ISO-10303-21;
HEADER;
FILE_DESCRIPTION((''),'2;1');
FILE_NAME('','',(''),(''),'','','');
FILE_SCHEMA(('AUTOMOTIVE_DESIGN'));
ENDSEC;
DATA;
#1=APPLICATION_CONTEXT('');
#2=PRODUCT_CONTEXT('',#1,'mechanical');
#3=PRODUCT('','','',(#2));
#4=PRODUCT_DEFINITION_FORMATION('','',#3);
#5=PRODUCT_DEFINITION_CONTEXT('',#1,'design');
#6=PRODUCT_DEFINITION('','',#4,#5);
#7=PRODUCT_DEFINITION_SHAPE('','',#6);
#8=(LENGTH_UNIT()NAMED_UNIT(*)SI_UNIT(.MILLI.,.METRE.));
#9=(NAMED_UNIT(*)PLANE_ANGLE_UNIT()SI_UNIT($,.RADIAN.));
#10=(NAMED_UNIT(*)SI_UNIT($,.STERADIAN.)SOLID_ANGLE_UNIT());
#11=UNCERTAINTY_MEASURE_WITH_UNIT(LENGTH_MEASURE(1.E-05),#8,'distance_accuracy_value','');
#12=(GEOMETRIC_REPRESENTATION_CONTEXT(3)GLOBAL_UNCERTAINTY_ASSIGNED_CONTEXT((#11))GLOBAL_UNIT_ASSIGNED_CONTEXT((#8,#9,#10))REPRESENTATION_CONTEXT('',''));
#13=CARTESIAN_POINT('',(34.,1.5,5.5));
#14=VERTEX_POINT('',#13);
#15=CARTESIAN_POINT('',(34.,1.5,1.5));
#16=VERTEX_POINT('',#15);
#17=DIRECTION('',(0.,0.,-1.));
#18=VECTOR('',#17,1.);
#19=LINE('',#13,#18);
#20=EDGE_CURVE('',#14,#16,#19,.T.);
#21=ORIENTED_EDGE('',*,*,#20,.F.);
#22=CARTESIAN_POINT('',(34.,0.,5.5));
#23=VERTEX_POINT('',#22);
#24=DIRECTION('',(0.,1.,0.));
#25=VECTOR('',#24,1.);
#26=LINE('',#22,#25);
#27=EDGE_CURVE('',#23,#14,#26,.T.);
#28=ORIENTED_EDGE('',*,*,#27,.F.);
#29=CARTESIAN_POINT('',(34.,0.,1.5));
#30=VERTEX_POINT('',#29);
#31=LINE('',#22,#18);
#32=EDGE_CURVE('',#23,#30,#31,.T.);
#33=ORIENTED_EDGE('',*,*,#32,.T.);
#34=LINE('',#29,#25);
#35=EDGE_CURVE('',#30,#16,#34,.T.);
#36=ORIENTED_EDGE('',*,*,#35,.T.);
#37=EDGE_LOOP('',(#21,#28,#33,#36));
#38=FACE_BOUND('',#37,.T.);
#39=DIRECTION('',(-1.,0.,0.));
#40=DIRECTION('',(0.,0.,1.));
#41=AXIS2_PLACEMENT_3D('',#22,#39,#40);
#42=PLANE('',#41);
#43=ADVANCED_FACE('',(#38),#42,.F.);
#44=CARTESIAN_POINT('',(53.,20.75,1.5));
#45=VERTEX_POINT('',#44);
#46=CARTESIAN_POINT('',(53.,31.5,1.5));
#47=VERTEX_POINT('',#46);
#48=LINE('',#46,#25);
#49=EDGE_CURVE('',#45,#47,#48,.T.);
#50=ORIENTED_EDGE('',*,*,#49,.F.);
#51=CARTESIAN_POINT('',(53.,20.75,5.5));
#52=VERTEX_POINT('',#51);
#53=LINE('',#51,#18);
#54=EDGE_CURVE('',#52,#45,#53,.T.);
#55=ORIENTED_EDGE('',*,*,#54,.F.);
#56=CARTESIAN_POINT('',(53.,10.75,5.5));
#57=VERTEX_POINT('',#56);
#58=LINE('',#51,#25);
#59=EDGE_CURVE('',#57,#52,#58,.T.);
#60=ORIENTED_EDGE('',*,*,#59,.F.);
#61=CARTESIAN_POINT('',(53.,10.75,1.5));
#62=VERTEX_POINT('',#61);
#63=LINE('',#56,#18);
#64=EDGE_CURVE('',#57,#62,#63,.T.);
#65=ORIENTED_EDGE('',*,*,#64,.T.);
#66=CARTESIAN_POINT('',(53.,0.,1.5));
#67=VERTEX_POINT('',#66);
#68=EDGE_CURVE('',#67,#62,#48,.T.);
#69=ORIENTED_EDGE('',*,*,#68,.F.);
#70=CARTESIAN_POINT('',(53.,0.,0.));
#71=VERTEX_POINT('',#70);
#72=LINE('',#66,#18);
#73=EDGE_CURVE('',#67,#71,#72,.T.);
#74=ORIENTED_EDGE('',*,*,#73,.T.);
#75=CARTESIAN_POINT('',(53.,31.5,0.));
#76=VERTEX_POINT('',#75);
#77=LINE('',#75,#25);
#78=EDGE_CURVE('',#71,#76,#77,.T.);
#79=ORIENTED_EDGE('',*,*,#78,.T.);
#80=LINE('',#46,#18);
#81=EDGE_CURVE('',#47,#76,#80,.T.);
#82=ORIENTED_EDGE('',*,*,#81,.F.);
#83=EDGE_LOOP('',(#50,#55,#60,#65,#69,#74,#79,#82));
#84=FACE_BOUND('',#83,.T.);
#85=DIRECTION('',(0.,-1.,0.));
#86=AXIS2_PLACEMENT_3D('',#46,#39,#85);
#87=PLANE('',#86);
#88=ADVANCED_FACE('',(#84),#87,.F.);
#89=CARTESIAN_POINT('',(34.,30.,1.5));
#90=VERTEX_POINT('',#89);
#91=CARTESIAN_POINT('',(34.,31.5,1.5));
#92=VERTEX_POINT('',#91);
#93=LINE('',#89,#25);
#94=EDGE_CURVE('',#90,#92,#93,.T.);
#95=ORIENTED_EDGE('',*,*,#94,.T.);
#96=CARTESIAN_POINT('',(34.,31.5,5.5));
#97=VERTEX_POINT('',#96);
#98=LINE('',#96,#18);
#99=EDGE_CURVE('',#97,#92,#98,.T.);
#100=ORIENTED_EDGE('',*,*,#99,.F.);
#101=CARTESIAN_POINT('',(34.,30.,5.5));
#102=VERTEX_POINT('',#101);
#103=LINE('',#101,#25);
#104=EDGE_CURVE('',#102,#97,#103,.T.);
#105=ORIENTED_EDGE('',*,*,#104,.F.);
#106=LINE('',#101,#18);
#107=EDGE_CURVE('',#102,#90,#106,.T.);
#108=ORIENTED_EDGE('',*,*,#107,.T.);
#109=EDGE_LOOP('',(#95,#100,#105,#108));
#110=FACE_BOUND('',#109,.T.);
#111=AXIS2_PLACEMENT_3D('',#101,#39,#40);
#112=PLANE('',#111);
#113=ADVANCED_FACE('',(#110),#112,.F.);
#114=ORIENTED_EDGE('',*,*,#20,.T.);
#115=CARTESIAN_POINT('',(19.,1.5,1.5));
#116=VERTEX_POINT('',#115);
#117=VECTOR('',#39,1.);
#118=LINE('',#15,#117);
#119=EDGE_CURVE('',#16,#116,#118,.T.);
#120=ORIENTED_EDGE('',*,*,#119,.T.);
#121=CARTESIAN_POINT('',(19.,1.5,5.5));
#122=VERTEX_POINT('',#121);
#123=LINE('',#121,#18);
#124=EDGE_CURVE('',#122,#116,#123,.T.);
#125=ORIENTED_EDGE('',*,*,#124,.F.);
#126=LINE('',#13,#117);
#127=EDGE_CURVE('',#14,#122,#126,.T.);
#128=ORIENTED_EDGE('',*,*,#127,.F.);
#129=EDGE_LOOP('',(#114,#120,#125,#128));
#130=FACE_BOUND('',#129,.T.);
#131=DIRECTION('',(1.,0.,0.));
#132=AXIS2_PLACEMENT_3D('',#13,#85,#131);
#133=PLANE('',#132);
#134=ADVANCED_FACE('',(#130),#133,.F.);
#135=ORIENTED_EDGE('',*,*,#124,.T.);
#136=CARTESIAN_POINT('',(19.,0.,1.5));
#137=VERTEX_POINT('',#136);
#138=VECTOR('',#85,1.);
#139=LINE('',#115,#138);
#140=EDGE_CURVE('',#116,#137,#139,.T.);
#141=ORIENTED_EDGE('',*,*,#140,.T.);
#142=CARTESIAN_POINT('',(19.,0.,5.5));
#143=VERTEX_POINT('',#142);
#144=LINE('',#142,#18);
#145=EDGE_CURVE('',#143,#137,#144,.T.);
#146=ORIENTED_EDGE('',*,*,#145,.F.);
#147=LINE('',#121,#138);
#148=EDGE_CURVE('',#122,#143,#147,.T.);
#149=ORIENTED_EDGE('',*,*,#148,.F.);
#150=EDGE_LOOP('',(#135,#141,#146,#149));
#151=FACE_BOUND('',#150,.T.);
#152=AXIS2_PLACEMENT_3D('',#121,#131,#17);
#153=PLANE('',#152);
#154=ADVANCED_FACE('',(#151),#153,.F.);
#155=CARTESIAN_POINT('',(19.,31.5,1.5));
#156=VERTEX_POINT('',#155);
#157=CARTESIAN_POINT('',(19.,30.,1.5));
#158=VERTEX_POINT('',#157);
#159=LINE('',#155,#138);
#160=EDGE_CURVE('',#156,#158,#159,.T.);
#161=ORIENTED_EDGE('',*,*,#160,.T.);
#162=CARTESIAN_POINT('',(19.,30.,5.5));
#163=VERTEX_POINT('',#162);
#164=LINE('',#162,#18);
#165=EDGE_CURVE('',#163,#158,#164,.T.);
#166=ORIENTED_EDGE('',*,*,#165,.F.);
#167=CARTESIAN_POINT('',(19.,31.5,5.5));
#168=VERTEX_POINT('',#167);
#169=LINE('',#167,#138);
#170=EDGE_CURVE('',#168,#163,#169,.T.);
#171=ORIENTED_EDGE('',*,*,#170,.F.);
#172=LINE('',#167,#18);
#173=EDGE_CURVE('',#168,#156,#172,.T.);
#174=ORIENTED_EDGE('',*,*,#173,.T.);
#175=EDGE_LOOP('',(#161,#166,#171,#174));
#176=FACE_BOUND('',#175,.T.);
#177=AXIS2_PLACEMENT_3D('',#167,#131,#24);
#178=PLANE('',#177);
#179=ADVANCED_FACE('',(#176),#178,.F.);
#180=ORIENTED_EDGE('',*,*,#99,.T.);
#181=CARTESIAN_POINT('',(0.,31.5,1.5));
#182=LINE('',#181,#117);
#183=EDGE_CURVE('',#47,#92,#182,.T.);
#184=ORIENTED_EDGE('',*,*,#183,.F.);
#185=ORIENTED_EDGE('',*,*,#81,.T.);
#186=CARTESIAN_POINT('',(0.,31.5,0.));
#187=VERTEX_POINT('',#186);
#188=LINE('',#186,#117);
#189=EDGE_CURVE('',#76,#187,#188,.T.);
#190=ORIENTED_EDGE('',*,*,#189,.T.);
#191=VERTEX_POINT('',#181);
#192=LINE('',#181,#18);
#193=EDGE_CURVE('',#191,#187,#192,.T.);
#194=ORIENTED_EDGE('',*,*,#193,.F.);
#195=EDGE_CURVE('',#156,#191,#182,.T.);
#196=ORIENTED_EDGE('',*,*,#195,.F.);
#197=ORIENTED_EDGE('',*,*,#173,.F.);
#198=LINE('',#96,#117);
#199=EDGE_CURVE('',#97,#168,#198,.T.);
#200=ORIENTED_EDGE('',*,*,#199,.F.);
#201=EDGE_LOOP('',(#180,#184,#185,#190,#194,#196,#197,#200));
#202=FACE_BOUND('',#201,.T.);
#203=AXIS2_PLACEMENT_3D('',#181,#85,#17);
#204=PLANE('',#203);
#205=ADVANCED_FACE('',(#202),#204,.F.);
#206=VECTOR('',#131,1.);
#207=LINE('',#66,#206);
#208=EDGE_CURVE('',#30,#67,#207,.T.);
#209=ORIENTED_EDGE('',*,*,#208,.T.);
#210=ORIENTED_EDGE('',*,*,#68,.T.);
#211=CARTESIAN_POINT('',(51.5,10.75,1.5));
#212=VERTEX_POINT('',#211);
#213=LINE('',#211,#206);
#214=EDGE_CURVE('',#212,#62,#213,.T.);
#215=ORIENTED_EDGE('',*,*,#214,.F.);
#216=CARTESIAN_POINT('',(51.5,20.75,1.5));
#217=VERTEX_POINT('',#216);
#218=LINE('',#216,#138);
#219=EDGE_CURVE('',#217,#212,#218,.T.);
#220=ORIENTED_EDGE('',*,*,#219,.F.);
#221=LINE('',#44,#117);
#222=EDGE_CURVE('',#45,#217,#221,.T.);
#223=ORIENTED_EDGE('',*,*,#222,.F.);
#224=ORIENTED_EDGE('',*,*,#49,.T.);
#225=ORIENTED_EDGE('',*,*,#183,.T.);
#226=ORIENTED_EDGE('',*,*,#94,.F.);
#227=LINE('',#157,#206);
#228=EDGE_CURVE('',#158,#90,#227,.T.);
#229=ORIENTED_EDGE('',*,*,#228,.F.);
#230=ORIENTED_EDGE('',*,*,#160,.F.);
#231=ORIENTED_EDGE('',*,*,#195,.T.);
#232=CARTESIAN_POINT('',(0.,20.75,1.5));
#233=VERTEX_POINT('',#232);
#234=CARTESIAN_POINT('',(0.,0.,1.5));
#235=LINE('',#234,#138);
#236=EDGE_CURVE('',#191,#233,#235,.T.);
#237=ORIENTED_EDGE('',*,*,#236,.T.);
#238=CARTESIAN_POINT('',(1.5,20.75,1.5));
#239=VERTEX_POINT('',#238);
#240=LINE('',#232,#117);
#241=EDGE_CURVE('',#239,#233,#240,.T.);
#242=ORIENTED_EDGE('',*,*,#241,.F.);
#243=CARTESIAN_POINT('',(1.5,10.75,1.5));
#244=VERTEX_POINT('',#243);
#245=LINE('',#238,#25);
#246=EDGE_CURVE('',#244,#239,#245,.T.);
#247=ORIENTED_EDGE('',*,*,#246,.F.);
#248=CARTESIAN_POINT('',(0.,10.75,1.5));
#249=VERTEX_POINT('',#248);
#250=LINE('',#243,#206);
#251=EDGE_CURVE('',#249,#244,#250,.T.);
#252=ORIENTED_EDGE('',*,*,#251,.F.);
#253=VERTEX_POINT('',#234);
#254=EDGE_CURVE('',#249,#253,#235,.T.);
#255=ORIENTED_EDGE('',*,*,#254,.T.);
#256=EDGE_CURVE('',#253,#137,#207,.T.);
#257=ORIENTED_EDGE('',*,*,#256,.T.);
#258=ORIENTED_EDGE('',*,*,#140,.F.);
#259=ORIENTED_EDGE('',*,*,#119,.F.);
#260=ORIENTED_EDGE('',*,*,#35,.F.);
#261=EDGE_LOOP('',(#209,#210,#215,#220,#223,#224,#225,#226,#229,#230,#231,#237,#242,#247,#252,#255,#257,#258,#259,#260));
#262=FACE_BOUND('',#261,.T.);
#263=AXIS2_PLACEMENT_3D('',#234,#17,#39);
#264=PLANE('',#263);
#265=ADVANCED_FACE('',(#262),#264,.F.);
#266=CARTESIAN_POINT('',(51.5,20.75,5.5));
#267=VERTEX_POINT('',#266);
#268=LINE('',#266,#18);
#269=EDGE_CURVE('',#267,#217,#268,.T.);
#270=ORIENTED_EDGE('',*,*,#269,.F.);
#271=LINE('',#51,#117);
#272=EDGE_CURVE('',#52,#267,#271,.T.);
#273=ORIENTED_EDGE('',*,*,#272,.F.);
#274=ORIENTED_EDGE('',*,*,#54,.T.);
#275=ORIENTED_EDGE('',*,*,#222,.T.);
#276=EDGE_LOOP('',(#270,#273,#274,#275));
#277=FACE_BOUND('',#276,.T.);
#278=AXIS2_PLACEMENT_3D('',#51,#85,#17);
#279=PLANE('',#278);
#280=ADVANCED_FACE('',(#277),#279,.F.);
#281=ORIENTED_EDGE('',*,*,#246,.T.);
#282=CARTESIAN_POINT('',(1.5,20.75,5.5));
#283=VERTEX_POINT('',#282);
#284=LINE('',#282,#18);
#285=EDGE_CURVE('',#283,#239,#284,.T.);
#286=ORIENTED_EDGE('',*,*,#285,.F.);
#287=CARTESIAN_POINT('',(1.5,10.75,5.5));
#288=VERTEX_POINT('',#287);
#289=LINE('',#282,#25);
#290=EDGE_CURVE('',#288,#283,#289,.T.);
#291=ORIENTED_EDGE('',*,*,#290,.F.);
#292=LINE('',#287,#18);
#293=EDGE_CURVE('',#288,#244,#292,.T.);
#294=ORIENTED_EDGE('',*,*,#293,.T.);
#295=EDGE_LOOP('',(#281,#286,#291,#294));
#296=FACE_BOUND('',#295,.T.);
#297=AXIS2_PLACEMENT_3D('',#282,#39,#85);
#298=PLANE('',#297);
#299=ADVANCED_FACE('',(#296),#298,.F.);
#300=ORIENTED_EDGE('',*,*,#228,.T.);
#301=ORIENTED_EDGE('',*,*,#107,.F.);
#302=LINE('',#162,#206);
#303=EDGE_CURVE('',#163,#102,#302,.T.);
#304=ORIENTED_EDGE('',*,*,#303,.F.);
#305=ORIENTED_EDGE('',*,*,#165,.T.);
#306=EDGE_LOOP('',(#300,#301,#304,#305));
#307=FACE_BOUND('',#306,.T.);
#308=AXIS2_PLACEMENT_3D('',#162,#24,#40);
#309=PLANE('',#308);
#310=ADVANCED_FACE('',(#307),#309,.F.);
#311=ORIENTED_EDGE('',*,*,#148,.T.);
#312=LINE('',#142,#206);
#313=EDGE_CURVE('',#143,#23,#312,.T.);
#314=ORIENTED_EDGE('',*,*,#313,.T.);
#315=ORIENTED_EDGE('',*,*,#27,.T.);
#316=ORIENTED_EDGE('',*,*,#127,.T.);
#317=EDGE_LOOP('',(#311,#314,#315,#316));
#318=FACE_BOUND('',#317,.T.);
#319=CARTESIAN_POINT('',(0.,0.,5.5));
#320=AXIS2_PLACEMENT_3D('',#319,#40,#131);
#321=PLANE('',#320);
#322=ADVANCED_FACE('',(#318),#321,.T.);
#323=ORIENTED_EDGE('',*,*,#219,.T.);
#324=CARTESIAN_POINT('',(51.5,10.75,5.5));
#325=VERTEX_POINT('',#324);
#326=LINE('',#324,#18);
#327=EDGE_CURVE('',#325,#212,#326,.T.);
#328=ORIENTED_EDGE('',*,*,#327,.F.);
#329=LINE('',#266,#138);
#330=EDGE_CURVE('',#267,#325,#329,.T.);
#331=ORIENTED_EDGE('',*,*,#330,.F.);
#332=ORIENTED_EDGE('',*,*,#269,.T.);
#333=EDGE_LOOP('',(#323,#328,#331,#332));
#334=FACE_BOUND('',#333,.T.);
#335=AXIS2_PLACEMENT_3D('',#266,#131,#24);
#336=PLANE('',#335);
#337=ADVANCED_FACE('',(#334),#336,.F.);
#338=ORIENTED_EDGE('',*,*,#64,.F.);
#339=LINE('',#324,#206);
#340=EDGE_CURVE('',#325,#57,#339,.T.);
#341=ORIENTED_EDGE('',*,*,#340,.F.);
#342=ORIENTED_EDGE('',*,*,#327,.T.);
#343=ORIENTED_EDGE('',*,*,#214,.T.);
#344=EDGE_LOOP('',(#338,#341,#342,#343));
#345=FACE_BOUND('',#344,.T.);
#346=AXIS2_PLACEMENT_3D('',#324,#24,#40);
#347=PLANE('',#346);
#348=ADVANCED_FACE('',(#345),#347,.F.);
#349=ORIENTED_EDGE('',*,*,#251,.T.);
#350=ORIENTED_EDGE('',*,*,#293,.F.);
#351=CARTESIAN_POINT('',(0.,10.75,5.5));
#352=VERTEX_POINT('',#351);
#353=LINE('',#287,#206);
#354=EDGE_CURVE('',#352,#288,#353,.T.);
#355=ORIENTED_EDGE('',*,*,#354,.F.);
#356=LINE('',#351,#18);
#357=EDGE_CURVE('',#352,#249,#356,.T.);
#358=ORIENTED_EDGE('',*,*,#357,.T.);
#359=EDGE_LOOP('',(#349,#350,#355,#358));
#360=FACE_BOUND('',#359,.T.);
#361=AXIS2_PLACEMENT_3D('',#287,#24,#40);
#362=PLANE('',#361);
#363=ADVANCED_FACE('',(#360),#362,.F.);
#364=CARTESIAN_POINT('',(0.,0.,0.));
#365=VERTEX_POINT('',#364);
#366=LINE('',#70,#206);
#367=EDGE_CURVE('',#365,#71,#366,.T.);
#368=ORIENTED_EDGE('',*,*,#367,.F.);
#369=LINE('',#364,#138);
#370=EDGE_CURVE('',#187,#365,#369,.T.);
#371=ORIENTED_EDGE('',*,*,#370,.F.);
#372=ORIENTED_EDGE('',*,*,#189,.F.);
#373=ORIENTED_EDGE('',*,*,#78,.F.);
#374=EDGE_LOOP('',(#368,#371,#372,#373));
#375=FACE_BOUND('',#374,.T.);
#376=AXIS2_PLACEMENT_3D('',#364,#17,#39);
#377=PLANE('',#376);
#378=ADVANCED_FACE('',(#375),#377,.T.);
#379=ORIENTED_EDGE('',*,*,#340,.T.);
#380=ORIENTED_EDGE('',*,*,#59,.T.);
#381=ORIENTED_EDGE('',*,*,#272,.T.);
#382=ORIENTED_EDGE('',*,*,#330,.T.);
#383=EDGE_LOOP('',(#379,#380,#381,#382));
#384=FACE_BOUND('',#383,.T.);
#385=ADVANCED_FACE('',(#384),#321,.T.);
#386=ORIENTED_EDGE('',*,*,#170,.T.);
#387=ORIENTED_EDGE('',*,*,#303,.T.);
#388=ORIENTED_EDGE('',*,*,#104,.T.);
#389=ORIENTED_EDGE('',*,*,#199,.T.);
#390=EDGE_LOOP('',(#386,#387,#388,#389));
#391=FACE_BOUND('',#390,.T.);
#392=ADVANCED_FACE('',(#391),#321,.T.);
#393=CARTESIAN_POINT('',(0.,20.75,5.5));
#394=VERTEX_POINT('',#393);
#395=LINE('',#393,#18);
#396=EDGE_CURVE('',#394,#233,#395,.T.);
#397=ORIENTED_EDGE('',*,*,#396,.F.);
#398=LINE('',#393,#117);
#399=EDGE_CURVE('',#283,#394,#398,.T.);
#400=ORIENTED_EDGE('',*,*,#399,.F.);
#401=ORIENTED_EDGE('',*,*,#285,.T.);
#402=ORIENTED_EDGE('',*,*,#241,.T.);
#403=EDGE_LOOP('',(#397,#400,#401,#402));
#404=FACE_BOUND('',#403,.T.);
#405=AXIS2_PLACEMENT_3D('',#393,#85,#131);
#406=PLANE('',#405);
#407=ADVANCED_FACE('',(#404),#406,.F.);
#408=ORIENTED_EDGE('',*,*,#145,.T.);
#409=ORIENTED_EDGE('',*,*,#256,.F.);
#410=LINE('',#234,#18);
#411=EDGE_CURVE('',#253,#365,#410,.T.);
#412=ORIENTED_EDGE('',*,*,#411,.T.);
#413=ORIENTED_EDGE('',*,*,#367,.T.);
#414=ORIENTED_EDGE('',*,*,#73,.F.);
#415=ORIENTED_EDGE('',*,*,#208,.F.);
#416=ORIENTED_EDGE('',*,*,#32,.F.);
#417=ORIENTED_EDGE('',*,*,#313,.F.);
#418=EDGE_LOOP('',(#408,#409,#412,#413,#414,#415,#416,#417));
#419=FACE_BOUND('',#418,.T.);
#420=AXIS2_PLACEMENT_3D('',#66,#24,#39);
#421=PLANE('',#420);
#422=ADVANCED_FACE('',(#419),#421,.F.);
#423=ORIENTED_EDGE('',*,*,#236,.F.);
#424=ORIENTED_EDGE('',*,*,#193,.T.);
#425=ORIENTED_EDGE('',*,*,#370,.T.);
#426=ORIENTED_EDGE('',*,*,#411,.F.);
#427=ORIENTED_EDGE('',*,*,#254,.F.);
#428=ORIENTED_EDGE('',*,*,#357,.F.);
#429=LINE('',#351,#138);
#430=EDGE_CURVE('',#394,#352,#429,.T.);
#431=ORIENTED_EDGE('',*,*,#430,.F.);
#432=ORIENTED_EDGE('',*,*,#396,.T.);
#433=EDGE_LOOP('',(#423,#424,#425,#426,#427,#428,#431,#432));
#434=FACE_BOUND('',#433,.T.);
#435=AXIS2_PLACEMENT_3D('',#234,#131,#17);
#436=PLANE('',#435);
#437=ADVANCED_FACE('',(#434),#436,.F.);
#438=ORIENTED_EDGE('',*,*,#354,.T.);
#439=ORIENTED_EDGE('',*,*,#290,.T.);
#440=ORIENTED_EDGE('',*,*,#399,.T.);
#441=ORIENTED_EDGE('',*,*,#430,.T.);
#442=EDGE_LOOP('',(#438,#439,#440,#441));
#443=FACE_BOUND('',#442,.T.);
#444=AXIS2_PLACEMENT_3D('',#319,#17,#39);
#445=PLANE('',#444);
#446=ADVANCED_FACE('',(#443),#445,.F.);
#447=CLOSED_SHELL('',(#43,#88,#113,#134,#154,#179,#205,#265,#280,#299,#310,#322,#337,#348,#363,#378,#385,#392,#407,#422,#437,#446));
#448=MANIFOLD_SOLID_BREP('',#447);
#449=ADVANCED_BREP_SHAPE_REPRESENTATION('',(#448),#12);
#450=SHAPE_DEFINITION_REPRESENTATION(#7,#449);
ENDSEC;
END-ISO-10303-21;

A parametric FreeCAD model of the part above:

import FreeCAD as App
import Part
import Sketcher
Q = App.Units.Quantity


def add_polygon(sketch, points):
    """Adds a closed chain of lines whose ends are joined by coincident constraints."""
    first, n = sketch.GeometryCount, len(points)
    for a, b in zip(points, points[1:] + points[:1]):
        sketch.addGeometry(Part.LineSegment(App.Vector(*a, 0), App.Vector(*b, 0)), False)
    for i in range(n):
        sketch.addConstraint(Sketcher.Constraint("Coincident", first + i, 2, first + (i + 1) % n, 1))

doc = App.newDocument("Part")
body = doc.addObject("PartDesign::Body", "Body")

# Sketch on XY plane
sketch1 = body.newObject("Sketcher::SketchObject", "Sketch")
sketch1.AttachmentSupport = (doc.getObject("XY_Plane"), [""])
sketch1.MapMode = "FlatFace"
add_polygon(sketch1, [(0, 32), (0, 0), (53, 0), (53, 32)])  # lines 0-3
sketch1.addConstraint(Sketcher.Constraint("Vertical", 0))
sketch1.addConstraint(Sketcher.Constraint("Horizontal", 1))
sketch1.addConstraint(Sketcher.Constraint("Vertical", 2))
sketch1.addConstraint(Sketcher.Constraint("Horizontal", 3))
sketch1.addConstraint(Sketcher.Constraint("Coincident", 0, 2, -1, 1))
sketch1.addConstraint(Sketcher.Constraint("DistanceX", 1, 1, 1, 2, Q("53 mm")))
sketch1.addConstraint(Sketcher.Constraint("DistanceY", 0, 2, 0, 1, Q("31.5 mm")))
pad1 = body.newObject("PartDesign::Pad", "Pad")
pad1.Profile = sketch1
pad1.Length = 1.5

# Sketch on XY plane
sketch2 = body.newObject("Sketcher::SketchObject", "Sketch001")
sketch2.AttachmentSupport = (doc.getObject("XY_Plane"), [""])
sketch2.MapMode = "FlatFace"
sketch2.AttachmentOffset = App.Placement(App.Vector(0, 0, 1.5), App.Rotation())
add_polygon(sketch2, [(0, 20.8), (0, 10.8), (1.5, 10.8), (1.5, 20.8)])  # lines 0-3
add_polygon(sketch2, [(19, 31.5), (19, 30), (34, 30), (34, 31.5)])  # lines 4-7
add_polygon(sketch2, [(51.5, 20.8), (51.5, 10.8), (53, 10.8), (53, 20.8)])  # lines 8-11
add_polygon(sketch2, [(19, 1.5), (19, 0), (34, 0), (34, 1.5)])  # lines 12-15
sketch2.addConstraint(Sketcher.Constraint("Vertical", 0))
sketch2.addConstraint(Sketcher.Constraint("Horizontal", 1))
sketch2.addConstraint(Sketcher.Constraint("Vertical", 2))
sketch2.addConstraint(Sketcher.Constraint("Horizontal", 3))
sketch2.addConstraint(Sketcher.Constraint("Vertical", 4))
sketch2.addConstraint(Sketcher.Constraint("Horizontal", 5))
sketch2.addConstraint(Sketcher.Constraint("Vertical", 6))
sketch2.addConstraint(Sketcher.Constraint("Horizontal", 7))
sketch2.addConstraint(Sketcher.Constraint("Vertical", 8))
sketch2.addConstraint(Sketcher.Constraint("Horizontal", 9))
sketch2.addConstraint(Sketcher.Constraint("Vertical", 10))
sketch2.addConstraint(Sketcher.Constraint("Horizontal", 11))
sketch2.addConstraint(Sketcher.Constraint("Vertical", 12))
sketch2.addConstraint(Sketcher.Constraint("Horizontal", 13))
sketch2.addConstraint(Sketcher.Constraint("Vertical", 14))
sketch2.addConstraint(Sketcher.Constraint("Horizontal", 15))
sketch2.addConstraint(Sketcher.Constraint("PointOnObject", 0, 2, -2))
sketch2.addConstraint(Sketcher.Constraint("PointOnObject", 12, 2, -1))
sketch2.addConstraint(Sketcher.Constraint("Horizontal", 1, 2, 8, 2))
sketch2.addConstraint(Sketcher.Constraint("Horizontal", 3, 2, 10, 2))
sketch2.addConstraint(Sketcher.Constraint("Vertical", 7, 2, 12, 2))
sketch2.addConstraint(Sketcher.Constraint("Vertical", 6, 2, 13, 2))
sketch2.addConstraint(Sketcher.Constraint("Equal", 3, 9))
sketch2.addConstraint(Sketcher.Constraint("Equal", 11, 4))
sketch2.addConstraint(Sketcher.Constraint("Equal", 6, 12))
sketch2.addConstraint(Sketcher.Constraint("DistanceX", 5, 1, 5, 2, Q("15 mm")))
sketch2.addConstraint(Sketcher.Constraint("DistanceY", 0, 2, 0, 1, Q("10 mm")))
sketch2.addConstraint(Sketcher.Constraint("DistanceX", 1, 1, 1, 2, Q("1.5 mm")))
sketch2.addConstraint(Sketcher.Constraint("DistanceX", -1, 1, 4, 2, Q("19 mm")))
sketch2.addConstraint(Sketcher.Constraint("DistanceY", -1, 1, 4, 2, Q("30 mm")))
sketch2.addConstraint(Sketcher.Constraint("DistanceX", -1, 1, 9, 2, Q("53 mm")))
sketch2.addConstraint(Sketcher.Constraint("DistanceY", -1, 1, 0, 2, Q("10.75 mm")))
pad2 = body.newObject("PartDesign::Pad", "Pad001")
pad2.Profile = sketch2
pad2.Length = 4

doc.recompute()
